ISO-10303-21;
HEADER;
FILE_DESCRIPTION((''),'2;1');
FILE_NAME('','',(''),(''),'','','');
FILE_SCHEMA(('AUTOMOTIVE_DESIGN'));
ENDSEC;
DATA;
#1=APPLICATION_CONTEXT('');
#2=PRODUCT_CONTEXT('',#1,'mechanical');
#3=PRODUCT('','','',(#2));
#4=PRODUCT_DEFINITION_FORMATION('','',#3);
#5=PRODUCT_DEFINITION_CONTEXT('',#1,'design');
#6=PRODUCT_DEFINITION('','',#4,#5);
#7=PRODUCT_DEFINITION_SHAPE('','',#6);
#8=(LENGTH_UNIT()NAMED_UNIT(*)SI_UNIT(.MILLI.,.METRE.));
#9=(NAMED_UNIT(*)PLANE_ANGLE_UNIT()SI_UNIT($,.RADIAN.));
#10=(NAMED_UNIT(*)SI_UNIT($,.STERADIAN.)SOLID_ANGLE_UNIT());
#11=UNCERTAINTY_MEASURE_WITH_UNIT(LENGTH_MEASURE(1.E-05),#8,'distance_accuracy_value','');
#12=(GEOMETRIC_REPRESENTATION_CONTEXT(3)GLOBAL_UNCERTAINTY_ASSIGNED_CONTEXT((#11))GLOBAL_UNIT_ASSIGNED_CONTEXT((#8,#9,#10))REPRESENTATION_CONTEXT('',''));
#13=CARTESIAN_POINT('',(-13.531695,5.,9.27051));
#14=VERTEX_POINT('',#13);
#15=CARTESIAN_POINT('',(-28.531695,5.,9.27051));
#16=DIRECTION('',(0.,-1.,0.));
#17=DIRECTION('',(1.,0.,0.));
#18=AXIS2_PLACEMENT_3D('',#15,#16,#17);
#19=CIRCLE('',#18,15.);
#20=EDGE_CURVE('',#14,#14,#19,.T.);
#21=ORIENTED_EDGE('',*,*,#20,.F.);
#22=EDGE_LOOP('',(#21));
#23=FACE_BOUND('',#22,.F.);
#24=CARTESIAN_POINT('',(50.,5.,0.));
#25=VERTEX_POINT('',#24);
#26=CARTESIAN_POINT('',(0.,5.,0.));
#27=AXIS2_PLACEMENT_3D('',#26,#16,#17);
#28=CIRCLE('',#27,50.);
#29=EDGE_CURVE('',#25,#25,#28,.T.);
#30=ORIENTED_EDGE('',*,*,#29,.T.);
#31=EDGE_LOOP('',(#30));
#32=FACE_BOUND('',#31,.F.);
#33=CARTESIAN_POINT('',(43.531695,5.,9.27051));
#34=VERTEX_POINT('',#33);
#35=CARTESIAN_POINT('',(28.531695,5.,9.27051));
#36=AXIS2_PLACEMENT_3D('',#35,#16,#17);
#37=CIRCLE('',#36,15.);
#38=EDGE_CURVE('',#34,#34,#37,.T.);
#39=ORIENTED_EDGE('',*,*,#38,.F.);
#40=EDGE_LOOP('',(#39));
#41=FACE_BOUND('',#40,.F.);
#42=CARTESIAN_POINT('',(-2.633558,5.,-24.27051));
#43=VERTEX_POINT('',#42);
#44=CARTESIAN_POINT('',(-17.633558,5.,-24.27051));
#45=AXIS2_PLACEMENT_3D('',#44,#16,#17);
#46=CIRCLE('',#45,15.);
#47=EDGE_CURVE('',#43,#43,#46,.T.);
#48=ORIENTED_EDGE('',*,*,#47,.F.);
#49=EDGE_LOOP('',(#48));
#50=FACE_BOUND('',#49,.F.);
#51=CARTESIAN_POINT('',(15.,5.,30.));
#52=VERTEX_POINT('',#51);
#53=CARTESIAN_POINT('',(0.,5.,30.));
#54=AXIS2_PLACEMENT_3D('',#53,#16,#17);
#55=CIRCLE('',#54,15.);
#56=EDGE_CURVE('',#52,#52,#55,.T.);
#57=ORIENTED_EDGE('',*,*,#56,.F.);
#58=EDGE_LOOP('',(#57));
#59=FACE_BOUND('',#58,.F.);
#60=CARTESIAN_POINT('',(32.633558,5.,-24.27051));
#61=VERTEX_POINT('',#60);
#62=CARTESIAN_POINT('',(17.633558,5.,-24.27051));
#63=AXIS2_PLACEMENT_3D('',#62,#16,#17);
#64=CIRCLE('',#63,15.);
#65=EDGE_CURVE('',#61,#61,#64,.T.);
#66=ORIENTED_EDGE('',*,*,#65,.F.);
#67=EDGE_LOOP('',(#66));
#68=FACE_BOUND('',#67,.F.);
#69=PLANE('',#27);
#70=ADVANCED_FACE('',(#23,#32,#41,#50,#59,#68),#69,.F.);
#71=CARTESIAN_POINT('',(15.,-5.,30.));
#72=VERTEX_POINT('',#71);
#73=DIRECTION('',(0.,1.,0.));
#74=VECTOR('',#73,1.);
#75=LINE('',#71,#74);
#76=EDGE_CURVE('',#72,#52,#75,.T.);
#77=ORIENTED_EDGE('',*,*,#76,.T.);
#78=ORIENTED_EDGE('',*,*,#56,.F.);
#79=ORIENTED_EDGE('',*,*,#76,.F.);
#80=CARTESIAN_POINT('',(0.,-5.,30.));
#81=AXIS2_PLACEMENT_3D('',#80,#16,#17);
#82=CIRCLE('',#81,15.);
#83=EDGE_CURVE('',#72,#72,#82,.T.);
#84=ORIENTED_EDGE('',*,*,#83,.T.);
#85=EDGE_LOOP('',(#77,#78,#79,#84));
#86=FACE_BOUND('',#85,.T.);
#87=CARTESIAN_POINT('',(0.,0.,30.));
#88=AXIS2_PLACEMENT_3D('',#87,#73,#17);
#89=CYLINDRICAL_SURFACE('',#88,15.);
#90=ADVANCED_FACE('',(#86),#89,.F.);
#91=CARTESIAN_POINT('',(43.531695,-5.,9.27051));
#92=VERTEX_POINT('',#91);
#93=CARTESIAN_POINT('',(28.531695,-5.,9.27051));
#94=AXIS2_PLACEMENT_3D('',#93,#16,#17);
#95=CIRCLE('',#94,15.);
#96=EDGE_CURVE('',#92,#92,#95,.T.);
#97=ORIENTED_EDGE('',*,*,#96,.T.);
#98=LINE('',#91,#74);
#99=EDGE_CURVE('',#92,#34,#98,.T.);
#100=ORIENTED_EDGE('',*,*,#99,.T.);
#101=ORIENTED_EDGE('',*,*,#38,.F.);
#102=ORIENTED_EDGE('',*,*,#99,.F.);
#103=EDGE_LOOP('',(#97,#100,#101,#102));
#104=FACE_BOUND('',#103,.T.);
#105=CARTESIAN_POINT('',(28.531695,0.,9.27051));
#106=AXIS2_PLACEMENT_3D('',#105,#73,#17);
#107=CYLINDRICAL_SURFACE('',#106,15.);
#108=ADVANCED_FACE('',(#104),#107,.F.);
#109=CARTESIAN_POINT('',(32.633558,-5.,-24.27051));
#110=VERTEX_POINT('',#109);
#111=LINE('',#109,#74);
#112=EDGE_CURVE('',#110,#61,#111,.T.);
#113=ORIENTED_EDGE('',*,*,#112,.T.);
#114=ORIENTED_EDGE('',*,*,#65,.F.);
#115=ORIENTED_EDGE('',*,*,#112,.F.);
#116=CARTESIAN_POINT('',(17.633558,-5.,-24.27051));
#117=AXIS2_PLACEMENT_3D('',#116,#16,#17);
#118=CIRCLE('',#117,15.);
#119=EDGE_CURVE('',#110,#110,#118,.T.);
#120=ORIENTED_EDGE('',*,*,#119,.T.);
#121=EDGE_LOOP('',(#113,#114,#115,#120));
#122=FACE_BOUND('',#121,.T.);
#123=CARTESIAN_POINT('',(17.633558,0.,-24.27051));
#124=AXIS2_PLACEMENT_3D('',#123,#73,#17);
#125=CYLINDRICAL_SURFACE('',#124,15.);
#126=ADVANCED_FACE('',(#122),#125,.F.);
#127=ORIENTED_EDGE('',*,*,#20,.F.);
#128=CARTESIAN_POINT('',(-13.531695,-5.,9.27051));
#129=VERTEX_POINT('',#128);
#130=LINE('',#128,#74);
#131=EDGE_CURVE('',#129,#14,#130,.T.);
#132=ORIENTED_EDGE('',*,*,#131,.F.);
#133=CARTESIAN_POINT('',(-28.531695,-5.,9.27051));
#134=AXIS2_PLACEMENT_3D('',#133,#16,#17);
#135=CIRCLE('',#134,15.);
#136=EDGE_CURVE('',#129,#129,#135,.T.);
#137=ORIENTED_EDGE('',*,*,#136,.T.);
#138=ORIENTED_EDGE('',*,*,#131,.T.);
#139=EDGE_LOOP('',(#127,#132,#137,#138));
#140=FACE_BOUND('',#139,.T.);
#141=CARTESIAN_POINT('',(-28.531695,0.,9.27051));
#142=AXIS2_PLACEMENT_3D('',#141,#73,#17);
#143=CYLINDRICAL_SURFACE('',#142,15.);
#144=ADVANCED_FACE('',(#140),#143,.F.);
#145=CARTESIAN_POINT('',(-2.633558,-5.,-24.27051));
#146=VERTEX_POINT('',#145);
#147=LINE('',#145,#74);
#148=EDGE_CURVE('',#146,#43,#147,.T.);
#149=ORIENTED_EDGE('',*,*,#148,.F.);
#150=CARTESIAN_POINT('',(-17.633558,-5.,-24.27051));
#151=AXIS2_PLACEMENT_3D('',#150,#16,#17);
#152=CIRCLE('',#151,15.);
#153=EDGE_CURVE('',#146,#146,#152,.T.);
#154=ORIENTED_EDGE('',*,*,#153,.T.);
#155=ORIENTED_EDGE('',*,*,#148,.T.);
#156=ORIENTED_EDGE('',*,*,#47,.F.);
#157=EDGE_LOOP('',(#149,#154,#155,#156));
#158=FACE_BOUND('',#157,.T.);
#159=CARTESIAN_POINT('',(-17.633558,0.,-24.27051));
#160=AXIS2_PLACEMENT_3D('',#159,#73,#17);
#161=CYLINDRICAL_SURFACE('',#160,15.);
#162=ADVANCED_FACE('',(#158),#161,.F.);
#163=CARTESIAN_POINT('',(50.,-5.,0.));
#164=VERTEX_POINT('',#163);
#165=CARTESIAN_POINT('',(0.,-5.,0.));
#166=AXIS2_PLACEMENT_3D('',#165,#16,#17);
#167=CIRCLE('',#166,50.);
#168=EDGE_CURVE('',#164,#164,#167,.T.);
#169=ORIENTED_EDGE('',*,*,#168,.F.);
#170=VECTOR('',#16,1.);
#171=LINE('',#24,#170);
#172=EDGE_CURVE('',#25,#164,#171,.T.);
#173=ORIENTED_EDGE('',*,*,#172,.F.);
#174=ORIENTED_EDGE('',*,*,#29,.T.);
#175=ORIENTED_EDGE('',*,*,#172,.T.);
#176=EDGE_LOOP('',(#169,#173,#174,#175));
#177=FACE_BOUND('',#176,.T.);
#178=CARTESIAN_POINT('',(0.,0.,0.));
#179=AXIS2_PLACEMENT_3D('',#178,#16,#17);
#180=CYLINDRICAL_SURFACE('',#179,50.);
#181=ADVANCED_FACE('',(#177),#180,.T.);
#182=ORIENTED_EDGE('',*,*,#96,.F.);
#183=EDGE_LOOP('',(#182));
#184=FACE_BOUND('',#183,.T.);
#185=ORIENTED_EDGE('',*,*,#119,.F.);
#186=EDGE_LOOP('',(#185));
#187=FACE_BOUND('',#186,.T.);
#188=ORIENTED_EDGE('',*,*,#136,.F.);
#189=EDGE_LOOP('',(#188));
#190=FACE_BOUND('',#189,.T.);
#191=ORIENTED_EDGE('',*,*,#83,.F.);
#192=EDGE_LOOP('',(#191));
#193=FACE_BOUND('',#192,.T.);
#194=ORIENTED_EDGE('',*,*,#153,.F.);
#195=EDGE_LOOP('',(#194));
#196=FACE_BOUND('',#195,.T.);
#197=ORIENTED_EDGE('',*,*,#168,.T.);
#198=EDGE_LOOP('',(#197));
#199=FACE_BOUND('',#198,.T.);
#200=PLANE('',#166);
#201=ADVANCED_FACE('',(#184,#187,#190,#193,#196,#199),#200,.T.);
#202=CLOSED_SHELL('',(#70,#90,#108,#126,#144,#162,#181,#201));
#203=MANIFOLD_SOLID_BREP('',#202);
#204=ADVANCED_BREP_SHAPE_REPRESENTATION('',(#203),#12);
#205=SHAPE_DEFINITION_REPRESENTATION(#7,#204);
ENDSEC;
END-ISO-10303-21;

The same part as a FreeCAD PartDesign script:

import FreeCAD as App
import Part
import Sketcher
from FreeCAD import Vector

doc = App.newDocument("Part")
params = doc.addObject("Spreadsheet::Sheet", "Params")
for row, (alias, value) in enumerate([
    ("sketch1_diameter", "100 mm"),
    ("sketch1_diameter2", "30 mm"),
    ("pad1_length", "10 mm"),
], start=1):
    params.set(f"A{row}", alias)
    params.set(f"B{row}", "=" + value)
    params.setAlias(f"B{row}", alias)

body = doc.addObject("PartDesign::Body", "Body")

# Sketch on XZ plane
sketch1 = body.newObject("Sketcher::SketchObject", "Sketch")
sketch1.AttachmentSupport = (doc.getObject("XZ_Plane"), [""])
sketch1.MapMode = "FlatFace"
sketch1.addGeometry([
    Part.Circle(Vector(0, 0, 0), Vector(0, 0, 1), 50),  # 0
    Part.Circle(Vector(-18, -24, 0), Vector(0, 0, 1), 15),  # 1
    Part.Circle(Vector(18, -24, 0), Vector(0, 0, 1), 15),  # 2
    Part.Circle(Vector(-29, 9, 0), Vector(0, 0, 1), 15),  # 3
    Part.Circle(Vector(29, 9, 0), Vector(0, 0, 1), 15),  # 4
    Part.Circle(Vector(0, 30, 0), Vector(0, 0, 1), 15),  # 5
], False)
sketch1.addConstraint([
    Sketcher.Constraint("Coincident", 0, 3, -1, 1),
    Sketcher.Constraint("Equal", 1, 2),
    Sketcher.Constraint("Equal", 2, 3),
    Sketcher.Constraint("Equal", 3, 4),
    Sketcher.Constraint("Equal", 4, 5),
    Sketcher.Constraint("Symmetric", 1, 3, 2, 3, -2),
    Sketcher.Constraint("Symmetric", 3, 3, 4, 3, -2),
    Sketcher.Constraint("PointOnObject", 5, 3, -2),
    Sketcher.Constraint("Diameter", 0, 100.0),
    Sketcher.Constraint("Diameter", 1, 30.0),
    Sketcher.Constraint("DistanceY", -1, 1, 5, 3, 30.0),
    Sketcher.Constraint("DistanceY", 1, 3, -1, 1, 24.27051),
    Sketcher.Constraint("DistanceY", -1, 1, 3, 3, 9.27051),
    Sketcher.Constraint("DistanceX", 3, 3, 4, 3, 57.063391),
    Sketcher.Constraint("DistanceX", 1, 3, -1, 1, 17.633558),
])
sketch1.setExpression("Constraints[8]", "Params.sketch1_diameter")
sketch1.setExpression("Constraints[9]", "Params.sketch1_diameter2")
pad1 = body.newObject("PartDesign::Pad", "Pad")
pad1.Profile = sketch1
pad1.setExpression("Length", "Params.pad1_length")
pad1.Midplane = True

doc.recompute()
